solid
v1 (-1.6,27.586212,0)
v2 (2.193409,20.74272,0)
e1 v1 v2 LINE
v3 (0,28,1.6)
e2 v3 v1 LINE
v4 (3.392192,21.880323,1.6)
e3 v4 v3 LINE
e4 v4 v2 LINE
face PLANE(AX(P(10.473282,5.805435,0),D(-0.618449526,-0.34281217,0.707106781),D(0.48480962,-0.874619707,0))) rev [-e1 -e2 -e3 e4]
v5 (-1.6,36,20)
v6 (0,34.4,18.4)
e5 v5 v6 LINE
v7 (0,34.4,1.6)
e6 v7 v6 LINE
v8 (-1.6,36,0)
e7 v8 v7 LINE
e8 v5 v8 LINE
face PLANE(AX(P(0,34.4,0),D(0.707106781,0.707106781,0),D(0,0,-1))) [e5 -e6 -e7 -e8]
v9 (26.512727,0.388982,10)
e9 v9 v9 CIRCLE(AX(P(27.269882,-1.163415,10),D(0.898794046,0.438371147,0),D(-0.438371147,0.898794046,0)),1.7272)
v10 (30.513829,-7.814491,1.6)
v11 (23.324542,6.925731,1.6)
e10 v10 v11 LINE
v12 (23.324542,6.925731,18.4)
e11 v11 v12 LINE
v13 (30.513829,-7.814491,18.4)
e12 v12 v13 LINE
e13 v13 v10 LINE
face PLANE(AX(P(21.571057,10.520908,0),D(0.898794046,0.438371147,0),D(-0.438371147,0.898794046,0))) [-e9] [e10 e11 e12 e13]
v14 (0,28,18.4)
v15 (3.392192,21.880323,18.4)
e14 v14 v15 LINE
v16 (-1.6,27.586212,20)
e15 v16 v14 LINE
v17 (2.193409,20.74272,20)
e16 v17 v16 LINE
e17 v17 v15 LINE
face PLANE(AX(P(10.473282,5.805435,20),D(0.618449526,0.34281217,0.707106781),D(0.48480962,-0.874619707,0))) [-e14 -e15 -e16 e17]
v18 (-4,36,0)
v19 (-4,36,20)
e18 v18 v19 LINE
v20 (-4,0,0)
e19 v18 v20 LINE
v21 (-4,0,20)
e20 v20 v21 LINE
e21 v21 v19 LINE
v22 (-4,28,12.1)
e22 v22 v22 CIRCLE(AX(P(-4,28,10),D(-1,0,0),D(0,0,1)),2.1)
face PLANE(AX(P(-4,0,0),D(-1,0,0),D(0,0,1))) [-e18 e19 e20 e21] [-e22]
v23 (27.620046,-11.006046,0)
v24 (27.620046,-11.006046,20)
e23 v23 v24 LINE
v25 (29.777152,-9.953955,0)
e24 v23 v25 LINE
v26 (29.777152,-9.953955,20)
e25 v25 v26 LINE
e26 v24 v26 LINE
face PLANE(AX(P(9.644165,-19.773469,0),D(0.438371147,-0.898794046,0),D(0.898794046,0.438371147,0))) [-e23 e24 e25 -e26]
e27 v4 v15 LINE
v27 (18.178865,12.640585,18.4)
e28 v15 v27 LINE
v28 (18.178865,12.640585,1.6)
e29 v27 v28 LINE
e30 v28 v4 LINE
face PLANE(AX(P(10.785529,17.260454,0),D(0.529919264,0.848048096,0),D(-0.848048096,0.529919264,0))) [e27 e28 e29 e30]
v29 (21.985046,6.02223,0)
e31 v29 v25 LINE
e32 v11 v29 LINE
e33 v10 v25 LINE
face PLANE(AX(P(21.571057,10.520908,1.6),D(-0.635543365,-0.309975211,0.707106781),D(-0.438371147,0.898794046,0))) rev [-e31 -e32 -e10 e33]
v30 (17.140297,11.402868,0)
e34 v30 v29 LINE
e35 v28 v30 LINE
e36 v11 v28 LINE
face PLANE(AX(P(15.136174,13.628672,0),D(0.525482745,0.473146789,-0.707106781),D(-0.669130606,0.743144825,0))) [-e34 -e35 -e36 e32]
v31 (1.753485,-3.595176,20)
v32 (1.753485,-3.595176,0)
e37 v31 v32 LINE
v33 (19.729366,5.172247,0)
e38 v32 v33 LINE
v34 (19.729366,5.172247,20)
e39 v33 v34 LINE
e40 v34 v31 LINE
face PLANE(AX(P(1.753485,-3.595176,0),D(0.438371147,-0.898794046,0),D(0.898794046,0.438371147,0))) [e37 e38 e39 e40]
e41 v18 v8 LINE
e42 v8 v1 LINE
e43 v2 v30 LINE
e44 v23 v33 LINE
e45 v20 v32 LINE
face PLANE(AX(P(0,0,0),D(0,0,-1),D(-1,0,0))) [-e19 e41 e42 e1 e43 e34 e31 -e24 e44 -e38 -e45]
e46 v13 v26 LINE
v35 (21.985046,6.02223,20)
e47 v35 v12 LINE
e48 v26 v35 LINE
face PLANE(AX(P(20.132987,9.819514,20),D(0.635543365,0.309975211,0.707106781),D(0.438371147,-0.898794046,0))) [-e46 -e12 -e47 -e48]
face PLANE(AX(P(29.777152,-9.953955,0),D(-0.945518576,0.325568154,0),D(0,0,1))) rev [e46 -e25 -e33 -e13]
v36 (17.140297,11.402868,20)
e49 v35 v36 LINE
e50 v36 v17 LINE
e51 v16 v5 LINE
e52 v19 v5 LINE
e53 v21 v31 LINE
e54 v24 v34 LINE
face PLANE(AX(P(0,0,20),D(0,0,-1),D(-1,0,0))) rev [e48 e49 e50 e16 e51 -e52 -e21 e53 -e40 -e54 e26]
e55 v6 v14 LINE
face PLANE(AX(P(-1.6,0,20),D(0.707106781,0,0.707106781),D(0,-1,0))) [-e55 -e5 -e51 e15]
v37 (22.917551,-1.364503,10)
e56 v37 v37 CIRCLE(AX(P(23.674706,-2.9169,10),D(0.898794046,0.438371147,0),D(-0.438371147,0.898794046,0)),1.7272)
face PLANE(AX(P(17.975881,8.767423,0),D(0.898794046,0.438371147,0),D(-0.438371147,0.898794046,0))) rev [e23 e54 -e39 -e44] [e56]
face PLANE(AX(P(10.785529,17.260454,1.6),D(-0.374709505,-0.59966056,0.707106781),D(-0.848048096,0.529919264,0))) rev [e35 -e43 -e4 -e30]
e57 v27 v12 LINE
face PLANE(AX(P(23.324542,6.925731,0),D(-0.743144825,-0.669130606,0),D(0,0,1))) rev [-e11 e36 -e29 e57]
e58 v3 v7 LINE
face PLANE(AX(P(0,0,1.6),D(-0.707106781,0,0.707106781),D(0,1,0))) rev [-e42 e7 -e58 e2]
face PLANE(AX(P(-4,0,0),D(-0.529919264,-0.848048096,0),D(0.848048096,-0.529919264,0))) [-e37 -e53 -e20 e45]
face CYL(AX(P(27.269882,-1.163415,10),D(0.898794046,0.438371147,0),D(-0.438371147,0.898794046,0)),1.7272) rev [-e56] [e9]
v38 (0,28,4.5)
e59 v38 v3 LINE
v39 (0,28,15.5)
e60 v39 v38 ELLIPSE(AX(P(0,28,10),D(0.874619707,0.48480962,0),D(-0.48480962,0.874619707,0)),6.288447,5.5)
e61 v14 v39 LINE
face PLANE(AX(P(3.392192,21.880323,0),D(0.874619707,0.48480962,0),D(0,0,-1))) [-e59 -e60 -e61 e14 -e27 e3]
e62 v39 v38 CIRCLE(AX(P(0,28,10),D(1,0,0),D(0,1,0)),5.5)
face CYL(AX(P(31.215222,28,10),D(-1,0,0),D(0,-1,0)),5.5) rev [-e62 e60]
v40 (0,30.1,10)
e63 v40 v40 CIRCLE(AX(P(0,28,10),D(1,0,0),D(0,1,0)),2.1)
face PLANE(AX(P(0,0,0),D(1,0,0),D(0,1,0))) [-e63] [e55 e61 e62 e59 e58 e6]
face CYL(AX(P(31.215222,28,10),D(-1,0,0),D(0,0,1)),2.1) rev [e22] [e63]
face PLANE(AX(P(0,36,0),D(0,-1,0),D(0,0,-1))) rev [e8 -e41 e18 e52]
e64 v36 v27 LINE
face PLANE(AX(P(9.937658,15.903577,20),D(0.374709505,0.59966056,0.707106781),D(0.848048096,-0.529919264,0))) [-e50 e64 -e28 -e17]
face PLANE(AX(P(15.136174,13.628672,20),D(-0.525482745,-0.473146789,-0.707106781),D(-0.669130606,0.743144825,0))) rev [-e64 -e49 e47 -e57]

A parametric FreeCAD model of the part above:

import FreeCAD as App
import Part
import Sketcher

V = App.Vector
Q = App.Units.Quantity


def edges_at(feature, points):
    """Names of the edges that pass closest to the given points."""
    edges = feature.Shape.Edges
    near = lambda p: min(range(len(edges)), key=lambda i: edges[i].distToShape(Part.Vertex(*p))[0])
    return sorted({f"Edge{near(p) + 1}" for p in points})


def add_polygon(sketch, points):
    """Adds a closed chain of lines whose ends are joined by coincident constraints."""
    first, n = sketch.GeometryCount, len(points)
    for a, b in zip(points, points[1:] + points[:1]):
        sketch.addGeometry(Part.LineSegment(App.Vector(*a, 0), App.Vector(*b, 0)), False)
    for i in range(n):
        sketch.addConstraint(Sketcher.Constraint("Coincident", first + i, 2, first + (i + 1) % n, 1))

doc = App.newDocument("Part")
params = doc.addObject("Spreadsheet::Sheet", "Params")
for row, (alias, value) in enumerate([
    ("sketch1_height", "20 mm"),
    ("pad1_length", "20 mm"),
    ("sketch2_width", "20 mm"),
    ("pad2_length", "4 mm"),
    ("sketch3_width", "20 mm"),
    ("pad3_length", "4 mm"),
    ("sketch4_width", "4 mm"),
    ("sketch4_height", "16 mm"),
    ("sketch4_height2", "12 mm"),
    ("sketch4_length", "18 mm"),
    ("pad4_length", "20 mm"),
    ("chamfer_size", "4 mm"),
    ("sketch5_diameter", "4.2 mm"),
    ("sketch6_diameter", "11 mm"),
    ("hole_diameter", "3.4544 mm"),
    ("hole_depth", "10 mm"),
    ("chamfer2_size", "1.6 mm"),
], start=1):
    params.set(f"A{row}", alias)
    params.set(f"B{row}", "=" + value)
    params.setAlias(f"B{row}", alias)

body = doc.addObject("PartDesign::Body", "Body")

# Sketch on XY plane
sketch1 = doc.addObject("Sketcher::SketchObject", "Sketch")
body.addObject(sketch1)
sketch1.AttachmentSupport = (doc.XY_Plane, [""])
sketch1.MapMode = "FlatFace"
add_polygon(sketch1, [(0, 20), (0, 0), (18, 9)])  # lines 0-2
sketch1.addConstraint([
    Sketcher.Constraint("Vertical", 0),
    Sketcher.Constraint("Coincident", 0, 2, -1, 1),
    Sketcher.Constraint("DistanceY", 0, 2, 0, 1, Q("20 mm")),
    Sketcher.Constraint("Angle", 1, Q("26 deg")),
    Sketcher.Constraint("Angle", 2, Q("148 deg")),
])
sketch1.setExpression("Constraints[5]", "Params.sketch1_height")
pad1 = doc.addObject("PartDesign::Pad", "Pad")
body.addObject(pad1)
pad1.Profile = sketch1
pad1.setExpression("Length", "Params.pad1_length")

# Sketch on YZ plane
sketch2 = doc.addObject("Sketcher::SketchObject", "Sketch001")
body.addObject(sketch2)
sketch2.AttachmentSupport = (doc.YZ_Plane, [""])
sketch2.MapMode = "FlatFace"
add_polygon(sketch2, [(20, 0), (0, 0), (0, 20), (20, 20)])  # lines 0-3
sketch2.addConstraint([
    Sketcher.Constraint("Horizontal", 0),
    Sketcher.Constraint("Vertical", 1),
    Sketcher.Constraint("Horizontal", 2),
    Sketcher.Constraint("Vertical", 3),
    Sketcher.Constraint("Coincident", 0, 2, -1, 1),
    Sketcher.Constraint("Equal", 2, 1),
    Sketcher.Constraint("DistanceX", 0, 2, 0, 1, Q("20 mm")),
])
sketch2.setExpression("Constraints[10]", "Params.sketch2_width")
pad2 = doc.addObject("PartDesign::Pad", "Pad001")
body.addObject(pad2)
pad2.Profile = sketch2
pad2.setExpression("Length", "Params.pad2_length")
pad2.Reversed = True

# Sketch on an angled plane
sketch3 = doc.addObject("Sketcher::SketchObject", "Sketch002")
body.addObject(sketch3)
sketch3.Placement = App.Placement(V(0, 0, 0), App.Rotation(V(0.898794046, 0.438371147, 0), V(0, 0, 1), V(0.438371147, -0.898794046, 0), "ZXY"))
add_polygon(sketch3, [(0, 20), (0, 0), (20, 0), (20, 20)])  # lines 0-3
sketch3.addConstraint([
    Sketcher.Constraint("Vertical", 0),
    Sketcher.Constraint("Horizontal", 1),
    Sketcher.Constraint("Vertical", 2),
    Sketcher.Constraint("Horizontal", 3),
    Sketcher.Constraint("Coincident", 0, 2, -1, 1),
    Sketcher.Constraint("Equal", 3, 0),
    Sketcher.Constraint("DistanceX", 1, 1, 1, 2, Q("20 mm")),
])
sketch3.setExpression("Constraints[10]", "Params.sketch3_width")
pad3 = doc.addObject("PartDesign::Pad", "Pad002")
body.addObject(pad3)
pad3.Profile = sketch3
pad3.setExpression("Length", "Params.pad3_length")

# Sketch on XY plane
sketch4 = doc.addObject("Sketcher::SketchObject", "Sketch003")
body.addObject(sketch4)
sketch4.AttachmentSupport = (doc.XY_Plane, [""])
sketch4.MapMode = "FlatFace"
sketch4.AttachmentOffset = App.Placement(V(0, 0, 20), App.Rotation())
add_polygon(sketch4, [(-4, 36), (-4, 20), (0, 20), (18, 8.8), (19.7, 5.2), (27.6, -11), (31.2, -9.3), (21.6, 10.5), (0, 24), (0, 36)])  # lines 0-9
add_polygon(sketch4, [(0, 0), (-4, 0), (1.8, -3.6)])  # lines 10-12
sketch4.addConstraint([
    Sketcher.Constraint("Vertical", 0),
    Sketcher.Constraint("Horizontal", 1),
    Sketcher.Constraint("Vertical", 8),
    Sketcher.Constraint("Horizontal", 9),
    Sketcher.Constraint("Horizontal", 10),
    Sketcher.Constraint("Coincident", 12, 2, -1, 1),
    Sketcher.Constraint("PointOnObject", 1, 2, -2),
    Sketcher.Constraint("PointOnObject", 7, 2, -2),
    Sketcher.Constraint("Parallel", 3, 4),
    Sketcher.Constraint("Perpendicular", 4, 5),
    Sketcher.Constraint("Perpendicular", 5, 6),
    Sketcher.Constraint("Parallel", 2, 7),
    Sketcher.Constraint("Parallel", 7, 11),
    Sketcher.Constraint("Parallel", 6, 12),
    Sketcher.Constraint("Vertical", 9, 2, 10, 2),
    Sketcher.Constraint("Equal", 3, 5),
    Sketcher.Constraint("Equal", 5, 12),
    Sketcher.Constraint("DistanceX", 1, 1, 1, 2, Q("4 mm")),
    Sketcher.Constraint("DistanceY", 0, 2, 0, 1, Q("16 mm")),
    Sketcher.Constraint("DistanceY", 8, 1, 8, 2, Q("12 mm")),
    Sketcher.Constraint("Angle", 2, Q("-32 deg")),
    Sketcher.Constraint("Angle", 3, Q("-64 deg")),
    Sketcher.Constraint("Distance", 4, Q("18 mm")),
    Sketcher.Constraint("DistanceY", -1, 1, 0, 2, Q("20 mm")),
    Sketcher.Constraint("DistanceY", 11, 2, 2, 2, Q("12.362599 mm")),
])
sketch4.setExpression("Constraints[30]", "Params.sketch4_width")
sketch4.setExpression("Constraints[31]", "Params.sketch4_height")
sketch4.setExpression("Constraints[32]", "Params.sketch4_height2")
sketch4.setExpression("Constraints[35]", "Params.sketch4_length")
pad4 = doc.addObject("PartDesign::Pad", "Pad003")
body.addObject(pad4)
pad4.Profile = sketch4
pad4.setExpression("Length", "Params.pad4_length")
pad4.Reversed = True
doc.recompute()

chamfer = doc.addObject("PartDesign::Chamfer", "Chamfer")
body.addObject(chamfer)
chamfer.Base = (pad4, edges_at(pad4, [(0, 24, 10), (21.571, 10.521, 10)]))
chamfer.setExpression("Size", "Params.chamfer_size")

# Sketch on YZ plane
sketch5 = doc.addObject("Sketcher::SketchObject", "Sketch004")
body.addObject(sketch5)
sketch5.AttachmentSupport = (doc.YZ_Plane, [""])
sketch5.MapMode = "FlatFace"
sketch5.AttachmentOffset = App.Placement(V(0, 0, -4), App.Rotation())
sketch5.addGeometry(Part.Circle(V(28, 10, 0), V(0, 0, 1), 2.1), False)
sketch5.addConstraint([
    Sketcher.Constraint("Diameter", 0, Q("4.2 mm")),
    Sketcher.Constraint("DistanceX", -1, 1, 0, 3, Q("28 mm")),
    Sketcher.Constraint("DistanceY", -1, 1, 0, 3, Q("10 mm")),
])
sketch5.setExpression("Constraints[0]", "Params.sketch5_diameter")
pocket1 = doc.addObject("PartDesign::Pocket", "Pocket")
body.addObject(pocket1)
pocket1.Profile = sketch5
pocket1.Type = "ThroughAll"
pocket1.Reversed = True

# Sketch on YZ plane
sketch6 = doc.addObject("Sketcher::SketchObject", "Sketch005")
body.addObject(sketch6)
sketch6.AttachmentSupport = (doc.YZ_Plane, [""])
sketch6.MapMode = "FlatFace"
sketch6.addGeometry(Part.Circle(V(28, 10, 0), V(0, 0, 1), 6), False)
sketch6.addConstraint([
    Sketcher.Constraint("Diameter", 0, Q("11 mm")),
    Sketcher.Constraint("DistanceX", -1, 1, 0, 3, Q("28 mm")),
    Sketcher.Constraint("DistanceY", -1, 1, 0, 3, Q("10 mm")),
])
sketch6.setExpression("Constraints[0]", "Params.sketch6_diameter")
pocket2 = doc.addObject("PartDesign::Pocket", "Pocket001")
body.addObject(pocket2)
pocket2.Profile = sketch6
pocket2.Type = "ThroughAll"
pocket2.Reversed = True

# Sketch on an angled plane
sketch7 = doc.addObject("Sketcher::SketchObject", "Sketch006")
body.addObject(sketch7)
sketch7.Placement = App.Placement(V(21.571057, 10.520908, 0), App.Rotation(V(0, 0, -1), V(-0.438371147, 0.898794046, 0), V(0.898794046, 0.438371147, 0), "ZXY"))
sketch7.addGeometry(Part.Circle(V(-10, -13, 0), V(0, 0, 1), 1.7), False)
sketch7.addConstraint([
    Sketcher.Constraint("DistanceX", 0, 3, -1, 1, Q("10 mm")),
    Sketcher.Constraint("DistanceY", 0, 3, -1, 1, Q("13 mm")),
    Sketcher.Constraint("Diameter", 0, Q("3.4544 mm")),
])
doc.recompute()
hole = doc.addObject("PartDesign::Hole", "Hole")
body.addObject(hole)
hole.Profile = sketch7
hole.ThreadType = "None"
hole.setExpression("Diameter", "Params.hole_diameter")
hole.DepthType = "Dimension"
hole.setExpression("Depth", "Params.hole_depth")
hole.DrillPoint = "Angled"
hole.DrillPointAngle = 118
doc.recompute()

chamfer2 = doc.addObject("PartDesign::Chamfer", "Chamfer001")
body.addObject(chamfer2)
chamfer2.Base = (hole, edges_at(hole, [
    (0, 36, 10),
    (27.27, -1.163, 0),
    (31.215, -9.253, 10),
    (27.27, -1.163, 20),
    (10.786, 17.26, 20),
    (10.786, 17.26, 0),
    (0, 32, 20),
    (0, 32, 0),
    (20.752, 9.783, 20),
    (20.752, 9.783, 0),
    (1.696, 24.94, 20),
    (1.696, 24.94, 0),
]))
chamfer2.setExpression("Size", "Params.chamfer2_size")

doc.recompute()
